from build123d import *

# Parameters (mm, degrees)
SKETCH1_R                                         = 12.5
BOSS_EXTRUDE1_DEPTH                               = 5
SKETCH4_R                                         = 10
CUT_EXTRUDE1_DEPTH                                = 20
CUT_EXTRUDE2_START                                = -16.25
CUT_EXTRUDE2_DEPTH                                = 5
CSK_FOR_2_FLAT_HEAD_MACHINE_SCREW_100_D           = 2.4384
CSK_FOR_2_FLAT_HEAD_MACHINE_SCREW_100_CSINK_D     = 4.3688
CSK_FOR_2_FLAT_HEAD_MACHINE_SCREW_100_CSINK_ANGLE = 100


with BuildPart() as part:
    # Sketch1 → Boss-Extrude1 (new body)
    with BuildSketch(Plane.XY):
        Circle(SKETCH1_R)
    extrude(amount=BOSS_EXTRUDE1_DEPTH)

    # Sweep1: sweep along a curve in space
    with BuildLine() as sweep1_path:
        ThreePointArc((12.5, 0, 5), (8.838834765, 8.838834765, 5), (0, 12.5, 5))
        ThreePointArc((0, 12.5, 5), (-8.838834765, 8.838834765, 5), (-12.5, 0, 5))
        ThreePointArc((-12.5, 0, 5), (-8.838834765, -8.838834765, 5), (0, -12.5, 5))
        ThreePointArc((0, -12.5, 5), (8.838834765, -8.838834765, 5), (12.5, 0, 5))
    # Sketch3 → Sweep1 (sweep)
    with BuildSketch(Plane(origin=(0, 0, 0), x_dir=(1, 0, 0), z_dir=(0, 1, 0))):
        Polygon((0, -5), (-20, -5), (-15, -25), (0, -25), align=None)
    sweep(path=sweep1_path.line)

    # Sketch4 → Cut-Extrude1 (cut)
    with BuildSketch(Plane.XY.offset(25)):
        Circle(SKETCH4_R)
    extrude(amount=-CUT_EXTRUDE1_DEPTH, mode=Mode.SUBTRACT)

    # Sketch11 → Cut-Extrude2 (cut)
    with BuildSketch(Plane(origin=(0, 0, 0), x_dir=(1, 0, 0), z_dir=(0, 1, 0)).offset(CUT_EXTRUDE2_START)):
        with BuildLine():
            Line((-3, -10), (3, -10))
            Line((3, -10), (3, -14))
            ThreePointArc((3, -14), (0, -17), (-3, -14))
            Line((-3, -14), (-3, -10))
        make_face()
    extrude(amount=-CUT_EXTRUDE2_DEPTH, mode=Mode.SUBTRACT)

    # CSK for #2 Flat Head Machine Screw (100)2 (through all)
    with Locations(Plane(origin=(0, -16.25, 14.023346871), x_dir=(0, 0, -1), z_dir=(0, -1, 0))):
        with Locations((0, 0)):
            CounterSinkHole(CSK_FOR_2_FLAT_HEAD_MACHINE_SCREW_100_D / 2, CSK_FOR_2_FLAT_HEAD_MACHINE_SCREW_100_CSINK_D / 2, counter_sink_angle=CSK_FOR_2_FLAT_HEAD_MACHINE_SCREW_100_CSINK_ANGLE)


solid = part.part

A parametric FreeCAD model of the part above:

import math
import FreeCAD as App
import Part
import Sketcher
Q = App.Units.Quantity

doc = App.newDocument("Part")
params = doc.addObject("Spreadsheet::Sheet", "Params")
for row, (alias, value) in enumerate([
    ("sketch1_diameter", "25 mm"),
    ("pad1_length", "5 mm"),
    ("sketch2_width", "20 mm"),
    ("sketch2_width2", "15 mm"),
    ("sketch3_radius", "12.5 mm"),
    ("sketch4_diameter", "20 mm"),
    ("pocket1_length", "20 mm"),
    ("sketch5_radius", "3 mm"),
    ("sketch5_height", "4 mm"),
    ("pocket2_length", "5 mm"),
    ("hole_diameter", "2.4384 mm"),
    ("hole_csink_diameter", "4.3688 mm"),
], start=1):
    params.set(f"A{row}", alias)
    params.set(f"B{row}", "=" + value)
    params.setAlias(f"B{row}", alias)

body = doc.addObject("PartDesign::Body", "Body")

# Sketch on XY plane
sketch1 = doc.addObject("Sketcher::SketchObject", "Sketch")
body.addObject(sketch1)
sketch1.AttachmentSupport = (doc.XY_Plane, [""])
sketch1.MapMode = "FlatFace"
sketch1.addGeometry(Part.Circle(App.Vector(0, 0, 0), App.Vector(0, 0, 1), 12), False)
sketch1.addConstraint([
    Sketcher.Constraint("Coincident", 0, 3, -1, 1),
    Sketcher.Constraint("Diameter", 0, Q("25 mm")),
])
sketch1.setExpression("Constraints[1]", "Params.sketch1_diameter")
pad1 = doc.addObject("PartDesign::Pad", "Pad")
body.addObject(pad1)
pad1.Profile = sketch1
pad1.setExpression("Length", "Params.pad1_length")

# Sketch on XZ plane
sketch2 = doc.addObject("Sketcher::SketchObject", "Sketch001")
body.addObject(sketch2)
sketch2.AttachmentSupport = (doc.XZ_Plane, [""])
sketch2.MapMode = "FlatFace"
sketch2.addGeometry([
    Part.LineSegment(App.Vector(0, 5, 0), App.Vector(-20, 5, 0)),
    Part.LineSegment(App.Vector(-20, 5, 0), App.Vector(-15, 25, 0)),
    Part.LineSegment(App.Vector(-15, 25, 0), App.Vector(0, 25, 0)),
    Part.LineSegment(App.Vector(0, 25, 0), App.Vector(0, 5, 0)),
], False)
sketch2.addConstraint([
    Sketcher.Constraint("Coincident", 0, 2, 1, 1),
    Sketcher.Constraint("Coincident", 1, 2, 2, 1),
    Sketcher.Constraint("Coincident", 2, 2, 3, 1),
    Sketcher.Constraint("Coincident", 3, 2, 0, 1),
    Sketcher.Constraint("Horizontal", 0),
    Sketcher.Constraint("Horizontal", 2),
    Sketcher.Constraint("Vertical", 3),
    Sketcher.Constraint("PointOnObject", 2, 2, -2),
    Sketcher.Constraint("Equal", 0, 3),
    Sketcher.Constraint("DistanceX", 0, 2, 0, 1, Q("20 mm")),
    Sketcher.Constraint("DistanceX", 2, 1, 2, 2, Q("15 mm")),
    Sketcher.Constraint("DistanceY", -1, 1, 0, 2, Q("5 mm")),
])
sketch2.setExpression("Constraints[9]", "Params.sketch2_width")
sketch2.setExpression("Constraints[10]", "Params.sketch2_width2")

# Sketch on XY plane
sketch3 = doc.addObject("Sketcher::SketchObject", "Sketch002")
body.addObject(sketch3)
sketch3.AttachmentSupport = (doc.XY_Plane, [""])
sketch3.MapMode = "FlatFace"
sketch3.AttachmentOffset = App.Placement(App.Vector(0, 0, 5), App.Rotation())
sketch3.addGeometry([
    Part.ArcOfCircle(Part.Circle(App.Vector(0, 0, 0), App.Vector(0, 0, 1), 12), math.radians(0), math.radians(90)),
    Part.ArcOfCircle(Part.Circle(App.Vector(0, 0, 0), App.Vector(0, 0, 1), 12), math.radians(90), math.radians(180)),
    Part.ArcOfCircle(Part.Circle(App.Vector(0, 0, 0), App.Vector(0, 0, 1), 12), math.radians(180), math.radians(270)),
    Part.ArcOfCircle(Part.Circle(App.Vector(0, 0, 0), App.Vector(0, 0, 1), 12), math.radians(-90), math.radians(0)),
], False)
sketch3.addConstraint([
    Sketcher.Constraint("Tangent", 0, 2, 1, 1),
    Sketcher.Constraint("Tangent", 1, 2, 2, 1),
    Sketcher.Constraint("Tangent", 2, 2, 3, 1),
    Sketcher.Constraint("Tangent", 3, 2, 0, 1),
    Sketcher.Constraint("Coincident", 0, 3, -1, 1),
    Sketcher.Constraint("Equal", 0, 1),
    Sketcher.Constraint("PointOnObject", 0, 2, -2),
    Sketcher.Constraint("PointOnObject", 1, 2, -1),
    Sketcher.Constraint("PointOnObject", 2, 2, -2),
    Sketcher.Constraint("PointOnObject", 3, 2, -1),
    Sketcher.Constraint("Radius", 0, Q("12.5 mm")),
])
sketch3.setExpression("Constraints[10]", "Params.sketch3_radius")
doc.recompute()

additivepipe = doc.addObject("PartDesign::AdditivePipe", "AdditivePipe")
body.addObject(additivepipe)
additivepipe.Profile = sketch2
additivepipe.Spine = (sketch3, ["Edge1", "Edge2", "Edge3", "Edge4"])

# Sketch on XY plane
sketch4 = doc.addObject("Sketcher::SketchObject", "Sketch003")
body.addObject(sketch4)
sketch4.AttachmentSupport = (doc.XY_Plane, [""])
sketch4.MapMode = "FlatFace"
sketch4.AttachmentOffset = App.Placement(App.Vector(0, 0, 25), App.Rotation())
sketch4.addGeometry(Part.Circle(App.Vector(0, 0, 0), App.Vector(0, 0, 1), 10), False)
sketch4.addConstraint([
    Sketcher.Constraint("Coincident", 0, 3, -1, 1),
    Sketcher.Constraint("Diameter", 0, Q("20 mm")),
])
sketch4.setExpression("Constraints[1]", "Params.sketch4_diameter")
pocket1 = doc.addObject("PartDesign::Pocket", "Pocket")
body.addObject(pocket1)
pocket1.Profile = sketch4
pocket1.setExpression("Length", "Params.pocket1_length")

# Sketch on XZ plane
sketch5 = doc.addObject("Sketcher::SketchObject", "Sketch004")
body.addObject(sketch5)
sketch5.AttachmentSupport = (doc.XZ_Plane, [""])
sketch5.MapMode = "FlatFace"
sketch5.AttachmentOffset = App.Placement(App.Vector(0, 0, 16.25), App.Rotation())
sketch5.addGeometry([
    Part.LineSegment(App.Vector(3, 10, 0), App.Vector(-3, 10, 0)),
    Part.LineSegment(App.Vector(-3, 10, 0), App.Vector(-3, 14, 0)),
    Part.ArcOfCircle(Part.Circle(App.Vector(0, 14, 0), App.Vector(0, 0, 1), 3), math.radians(0), math.radians(180)),
    Part.LineSegment(App.Vector(3, 14, 0), App.Vector(3, 10, 0)),
], False)
sketch5.addConstraint([
    Sketcher.Constraint("Coincident", 0, 2, 1, 1),
    Sketcher.Constraint("Tangent", 1, 2, 2, 2),
    Sketcher.Constraint("Tangent", 2, 1, 3, 1),
    Sketcher.Constraint("Coincident", 3, 2, 0, 1),
    Sketcher.Constraint("Horizontal", 0),
    Sketcher.Constraint("Vertical", 1),
    Sketcher.Constraint("Vertical", 3),
    Sketcher.Constraint("PointOnObject", 2, 3, -2),
    Sketcher.Constraint("Radius", 2, Q("3 mm")),
    Sketcher.Constraint("DistanceY", 1, 1, 1, 2, Q("4 mm")),
    Sketcher.Constraint("DistanceY", -1, 1, 2, 3, Q("14 mm")),
])
sketch5.setExpression("Constraints[8]", "Params.sketch5_radius")
sketch5.setExpression("Constraints[9]", "Params.sketch5_height")
pocket2 = doc.addObject("PartDesign::Pocket", "Pocket001")
body.addObject(pocket2)
pocket2.Profile = sketch5
pocket2.setExpression("Length", "Params.pocket2_length")
pocket2.Reversed = True

# Sketch on XZ plane
sketch6 = doc.addObject("Sketcher::SketchObject", "Sketch005")
body.addObject(sketch6)
sketch6.AttachmentSupport = (doc.XZ_Plane, [""])
sketch6.MapMode = "FlatFace"
sketch6.AttachmentOffset = App.Placement(App.Vector(0, 0, 16.25), App.Rotation())
sketch6.addGeometry(Part.Circle(App.Vector(0, 14, 0), App.Vector(0, 0, 1), 1.2), False)
sketch6.addConstraint([
    Sketcher.Constraint("PointOnObject", 0, 3, -2),
    Sketcher.Constraint("Diameter", 0, Q("2.4384 mm")),
    Sketcher.Constraint("DistanceY", -1, 1, 0, 3, Q("14.023347 mm")),
])
doc.recompute()
hole = doc.addObject("PartDesign::Hole", "Hole")
body.addObject(hole)
hole.Profile = sketch6
hole.ThreadType = "None"
hole.setExpression("Diameter", "Params.hole_diameter")
hole.DepthType = "ThroughAll"
hole.HoleCutType = "Countersink"
hole.setExpression("HoleCutDiameter", "Params.hole_csink_diameter")
hole.HoleCutCountersinkAngle = 100

doc.recompute()
